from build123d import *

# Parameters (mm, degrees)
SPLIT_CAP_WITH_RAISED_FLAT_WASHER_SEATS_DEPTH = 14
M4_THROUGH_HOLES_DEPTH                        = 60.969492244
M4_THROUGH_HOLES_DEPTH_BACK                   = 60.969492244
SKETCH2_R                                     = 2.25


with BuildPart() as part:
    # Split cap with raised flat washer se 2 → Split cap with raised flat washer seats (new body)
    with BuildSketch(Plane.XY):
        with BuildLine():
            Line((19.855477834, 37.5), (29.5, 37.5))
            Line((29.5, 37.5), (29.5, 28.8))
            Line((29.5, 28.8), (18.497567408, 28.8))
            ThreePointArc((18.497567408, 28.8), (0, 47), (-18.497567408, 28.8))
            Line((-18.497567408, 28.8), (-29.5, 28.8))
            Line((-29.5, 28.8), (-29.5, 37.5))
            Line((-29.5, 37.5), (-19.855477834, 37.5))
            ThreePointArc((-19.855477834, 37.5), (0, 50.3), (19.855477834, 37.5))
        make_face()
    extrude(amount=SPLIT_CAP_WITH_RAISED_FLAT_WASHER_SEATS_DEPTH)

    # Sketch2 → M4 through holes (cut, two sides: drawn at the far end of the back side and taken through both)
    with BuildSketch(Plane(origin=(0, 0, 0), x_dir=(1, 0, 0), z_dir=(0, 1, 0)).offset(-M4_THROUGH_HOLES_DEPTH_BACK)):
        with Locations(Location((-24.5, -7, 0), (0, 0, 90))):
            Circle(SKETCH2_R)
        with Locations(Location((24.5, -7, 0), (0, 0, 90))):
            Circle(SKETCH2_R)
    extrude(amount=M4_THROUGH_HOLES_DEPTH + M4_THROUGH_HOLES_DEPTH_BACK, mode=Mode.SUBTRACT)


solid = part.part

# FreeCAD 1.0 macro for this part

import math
import FreeCAD as App
import Part
import Sketcher

V = App.Vector
Q = App.Units.Quantity

doc = App.newDocument("Part")
body = doc.addObject("PartDesign::Body", "Body")

# Sketch on XY plane
sketch1 = doc.addObject("Sketcher::SketchObject", "Sketch")
body.addObject(sketch1)
sketch1.AttachmentSupport = (doc.XY_Plane, [""])
sketch1.MapMode = "FlatFace"
sketch1.addGeometry(Part.LineSegment(V(30, 38, 0), V(20, 38, 0)), False)
sketch1.addGeometry(Part.ArcOfCircle(Part.Circle(V(0, 28, 0), V(0, 0, 1), 22), math.radians(24), math.radians(156)), False)
sketch1.addGeometry(Part.LineSegment(V(-20, 38, 0), V(-30, 38, 0)), False)
sketch1.addGeometry(Part.LineSegment(V(-30, 38, 0), V(-30, 29, 0)), False)
sketch1.addGeometry(Part.LineSegment(V(-30, 29, 0), V(-18, 29, 0)), False)
sketch1.addGeometry(Part.ArcOfCircle(Part.Circle(V(0, 28, 0), V(0, 0, 1), 18), math.radians(1), math.radians(179)), False)
sketch1.addGeometry(Part.LineSegment(V(18, 29, 0), V(30, 29, 0)), False)
sketch1.addGeometry(Part.LineSegment(V(30, 29, 0), V(30, 38, 0)), False)
sketch1.addConstraint(Sketcher.Constraint("Coincident", 0, 2, 1, 1))
sketch1.addConstraint(Sketcher.Constraint("Coincident", 1, 2, 2, 1))
sketch1.addConstraint(Sketcher.Constraint("Coincident", 2, 2, 3, 1))
sketch1.addConstraint(Sketcher.Constraint("Coincident", 3, 2, 4, 1))
sketch1.addConstraint(Sketcher.Constraint("Coincident", 4, 2, 5, 2))
sketch1.addConstraint(Sketcher.Constraint("Coincident", 5, 1, 6, 1))
sketch1.addConstraint(Sketcher.Constraint("Coincident", 6, 2, 7, 1))
sketch1.addConstraint(Sketcher.Constraint("Coincident", 7, 2, 0, 1))
sketch1.addConstraint(Sketcher.Constraint("Horizontal", 0))
sketch1.addConstraint(Sketcher.Constraint("Horizontal", 2))
sketch1.addConstraint(Sketcher.Constraint("Vertical", 3))
sketch1.addConstraint(Sketcher.Constraint("Horizontal", 4))
sketch1.addConstraint(Sketcher.Constraint("Horizontal", 6))
sketch1.addConstraint(Sketcher.Constraint("Vertical", 7))
sketch1.addConstraint(Sketcher.Constraint("Coincident", 5, 3, 1, 3))
sketch1.addConstraint(Sketcher.Constraint("Symmetric", 0, 2, 1, 2, -2))
sketch1.addConstraint(Sketcher.Constraint("Symmetric", 3, 2, 6, 2, -2))
sketch1.addConstraint(Sketcher.Constraint("Radius", 1, Q("21.8 mm")))
sketch1.addConstraint(Sketcher.Constraint("Radius", 5, Q("18.5 mm")))
sketch1.addConstraint(Sketcher.Constraint("DistanceY", 3, 2, 3, 1, Q("8.7 mm")))
sketch1.addConstraint(Sketcher.Constraint("DistanceY", 5, 3, 0, 2, Q("9 mm")))
sketch1.addConstraint(Sketcher.Constraint("DistanceY", -1, 1, 1, 3, Q("28.5 mm")))
sketch1.addConstraint(Sketcher.Constraint("DistanceX", 2, 2, -1, 1, Q("29.5 mm")))
pad1 = doc.addObject("PartDesign::Pad", "Pad")
body.addObject(pad1)
pad1.Profile = sketch1
pad1.Length = 14

# Sketch on XZ plane
sketch2 = doc.addObject("Sketcher::SketchObject", "Sketch001")
body.addObject(sketch2)
sketch2.AttachmentSupport = (doc.XZ_Plane, [""])
sketch2.MapMode = "FlatFace"
sketch2.addGeometry(Part.Circle(V(-24.5, 7, 0), V(0, 0, 1), 2.2), False)
sketch2.addGeometry(Part.Circle(V(24.5, 7, 0), V(0, 0, 1), 2.2), False)
sketch2.addConstraint(Sketcher.Constraint("Equal", 0, 1))
sketch2.addConstraint(Sketcher.Constraint("Symmetric", 0, 3, 1, 3, -2))
sketch2.addConstraint(Sketcher.Constraint("Diameter", 0, Q("4.5 mm")))
sketch2.addConstraint(Sketcher.Constraint("DistanceY", -1, 1, 0, 3, Q("7 mm")))
sketch2.addConstraint(Sketcher.Constraint("DistanceX", 0, 3, 1, 3, Q("49 mm")))
pocket1 = doc.addObject("PartDesign::Pocket", "Pocket")
body.addObject(pocket1)
pocket1.Profile = sketch2
pocket1.Type = "ThroughAll"
pocket1.Midplane = True

doc.recompute()
